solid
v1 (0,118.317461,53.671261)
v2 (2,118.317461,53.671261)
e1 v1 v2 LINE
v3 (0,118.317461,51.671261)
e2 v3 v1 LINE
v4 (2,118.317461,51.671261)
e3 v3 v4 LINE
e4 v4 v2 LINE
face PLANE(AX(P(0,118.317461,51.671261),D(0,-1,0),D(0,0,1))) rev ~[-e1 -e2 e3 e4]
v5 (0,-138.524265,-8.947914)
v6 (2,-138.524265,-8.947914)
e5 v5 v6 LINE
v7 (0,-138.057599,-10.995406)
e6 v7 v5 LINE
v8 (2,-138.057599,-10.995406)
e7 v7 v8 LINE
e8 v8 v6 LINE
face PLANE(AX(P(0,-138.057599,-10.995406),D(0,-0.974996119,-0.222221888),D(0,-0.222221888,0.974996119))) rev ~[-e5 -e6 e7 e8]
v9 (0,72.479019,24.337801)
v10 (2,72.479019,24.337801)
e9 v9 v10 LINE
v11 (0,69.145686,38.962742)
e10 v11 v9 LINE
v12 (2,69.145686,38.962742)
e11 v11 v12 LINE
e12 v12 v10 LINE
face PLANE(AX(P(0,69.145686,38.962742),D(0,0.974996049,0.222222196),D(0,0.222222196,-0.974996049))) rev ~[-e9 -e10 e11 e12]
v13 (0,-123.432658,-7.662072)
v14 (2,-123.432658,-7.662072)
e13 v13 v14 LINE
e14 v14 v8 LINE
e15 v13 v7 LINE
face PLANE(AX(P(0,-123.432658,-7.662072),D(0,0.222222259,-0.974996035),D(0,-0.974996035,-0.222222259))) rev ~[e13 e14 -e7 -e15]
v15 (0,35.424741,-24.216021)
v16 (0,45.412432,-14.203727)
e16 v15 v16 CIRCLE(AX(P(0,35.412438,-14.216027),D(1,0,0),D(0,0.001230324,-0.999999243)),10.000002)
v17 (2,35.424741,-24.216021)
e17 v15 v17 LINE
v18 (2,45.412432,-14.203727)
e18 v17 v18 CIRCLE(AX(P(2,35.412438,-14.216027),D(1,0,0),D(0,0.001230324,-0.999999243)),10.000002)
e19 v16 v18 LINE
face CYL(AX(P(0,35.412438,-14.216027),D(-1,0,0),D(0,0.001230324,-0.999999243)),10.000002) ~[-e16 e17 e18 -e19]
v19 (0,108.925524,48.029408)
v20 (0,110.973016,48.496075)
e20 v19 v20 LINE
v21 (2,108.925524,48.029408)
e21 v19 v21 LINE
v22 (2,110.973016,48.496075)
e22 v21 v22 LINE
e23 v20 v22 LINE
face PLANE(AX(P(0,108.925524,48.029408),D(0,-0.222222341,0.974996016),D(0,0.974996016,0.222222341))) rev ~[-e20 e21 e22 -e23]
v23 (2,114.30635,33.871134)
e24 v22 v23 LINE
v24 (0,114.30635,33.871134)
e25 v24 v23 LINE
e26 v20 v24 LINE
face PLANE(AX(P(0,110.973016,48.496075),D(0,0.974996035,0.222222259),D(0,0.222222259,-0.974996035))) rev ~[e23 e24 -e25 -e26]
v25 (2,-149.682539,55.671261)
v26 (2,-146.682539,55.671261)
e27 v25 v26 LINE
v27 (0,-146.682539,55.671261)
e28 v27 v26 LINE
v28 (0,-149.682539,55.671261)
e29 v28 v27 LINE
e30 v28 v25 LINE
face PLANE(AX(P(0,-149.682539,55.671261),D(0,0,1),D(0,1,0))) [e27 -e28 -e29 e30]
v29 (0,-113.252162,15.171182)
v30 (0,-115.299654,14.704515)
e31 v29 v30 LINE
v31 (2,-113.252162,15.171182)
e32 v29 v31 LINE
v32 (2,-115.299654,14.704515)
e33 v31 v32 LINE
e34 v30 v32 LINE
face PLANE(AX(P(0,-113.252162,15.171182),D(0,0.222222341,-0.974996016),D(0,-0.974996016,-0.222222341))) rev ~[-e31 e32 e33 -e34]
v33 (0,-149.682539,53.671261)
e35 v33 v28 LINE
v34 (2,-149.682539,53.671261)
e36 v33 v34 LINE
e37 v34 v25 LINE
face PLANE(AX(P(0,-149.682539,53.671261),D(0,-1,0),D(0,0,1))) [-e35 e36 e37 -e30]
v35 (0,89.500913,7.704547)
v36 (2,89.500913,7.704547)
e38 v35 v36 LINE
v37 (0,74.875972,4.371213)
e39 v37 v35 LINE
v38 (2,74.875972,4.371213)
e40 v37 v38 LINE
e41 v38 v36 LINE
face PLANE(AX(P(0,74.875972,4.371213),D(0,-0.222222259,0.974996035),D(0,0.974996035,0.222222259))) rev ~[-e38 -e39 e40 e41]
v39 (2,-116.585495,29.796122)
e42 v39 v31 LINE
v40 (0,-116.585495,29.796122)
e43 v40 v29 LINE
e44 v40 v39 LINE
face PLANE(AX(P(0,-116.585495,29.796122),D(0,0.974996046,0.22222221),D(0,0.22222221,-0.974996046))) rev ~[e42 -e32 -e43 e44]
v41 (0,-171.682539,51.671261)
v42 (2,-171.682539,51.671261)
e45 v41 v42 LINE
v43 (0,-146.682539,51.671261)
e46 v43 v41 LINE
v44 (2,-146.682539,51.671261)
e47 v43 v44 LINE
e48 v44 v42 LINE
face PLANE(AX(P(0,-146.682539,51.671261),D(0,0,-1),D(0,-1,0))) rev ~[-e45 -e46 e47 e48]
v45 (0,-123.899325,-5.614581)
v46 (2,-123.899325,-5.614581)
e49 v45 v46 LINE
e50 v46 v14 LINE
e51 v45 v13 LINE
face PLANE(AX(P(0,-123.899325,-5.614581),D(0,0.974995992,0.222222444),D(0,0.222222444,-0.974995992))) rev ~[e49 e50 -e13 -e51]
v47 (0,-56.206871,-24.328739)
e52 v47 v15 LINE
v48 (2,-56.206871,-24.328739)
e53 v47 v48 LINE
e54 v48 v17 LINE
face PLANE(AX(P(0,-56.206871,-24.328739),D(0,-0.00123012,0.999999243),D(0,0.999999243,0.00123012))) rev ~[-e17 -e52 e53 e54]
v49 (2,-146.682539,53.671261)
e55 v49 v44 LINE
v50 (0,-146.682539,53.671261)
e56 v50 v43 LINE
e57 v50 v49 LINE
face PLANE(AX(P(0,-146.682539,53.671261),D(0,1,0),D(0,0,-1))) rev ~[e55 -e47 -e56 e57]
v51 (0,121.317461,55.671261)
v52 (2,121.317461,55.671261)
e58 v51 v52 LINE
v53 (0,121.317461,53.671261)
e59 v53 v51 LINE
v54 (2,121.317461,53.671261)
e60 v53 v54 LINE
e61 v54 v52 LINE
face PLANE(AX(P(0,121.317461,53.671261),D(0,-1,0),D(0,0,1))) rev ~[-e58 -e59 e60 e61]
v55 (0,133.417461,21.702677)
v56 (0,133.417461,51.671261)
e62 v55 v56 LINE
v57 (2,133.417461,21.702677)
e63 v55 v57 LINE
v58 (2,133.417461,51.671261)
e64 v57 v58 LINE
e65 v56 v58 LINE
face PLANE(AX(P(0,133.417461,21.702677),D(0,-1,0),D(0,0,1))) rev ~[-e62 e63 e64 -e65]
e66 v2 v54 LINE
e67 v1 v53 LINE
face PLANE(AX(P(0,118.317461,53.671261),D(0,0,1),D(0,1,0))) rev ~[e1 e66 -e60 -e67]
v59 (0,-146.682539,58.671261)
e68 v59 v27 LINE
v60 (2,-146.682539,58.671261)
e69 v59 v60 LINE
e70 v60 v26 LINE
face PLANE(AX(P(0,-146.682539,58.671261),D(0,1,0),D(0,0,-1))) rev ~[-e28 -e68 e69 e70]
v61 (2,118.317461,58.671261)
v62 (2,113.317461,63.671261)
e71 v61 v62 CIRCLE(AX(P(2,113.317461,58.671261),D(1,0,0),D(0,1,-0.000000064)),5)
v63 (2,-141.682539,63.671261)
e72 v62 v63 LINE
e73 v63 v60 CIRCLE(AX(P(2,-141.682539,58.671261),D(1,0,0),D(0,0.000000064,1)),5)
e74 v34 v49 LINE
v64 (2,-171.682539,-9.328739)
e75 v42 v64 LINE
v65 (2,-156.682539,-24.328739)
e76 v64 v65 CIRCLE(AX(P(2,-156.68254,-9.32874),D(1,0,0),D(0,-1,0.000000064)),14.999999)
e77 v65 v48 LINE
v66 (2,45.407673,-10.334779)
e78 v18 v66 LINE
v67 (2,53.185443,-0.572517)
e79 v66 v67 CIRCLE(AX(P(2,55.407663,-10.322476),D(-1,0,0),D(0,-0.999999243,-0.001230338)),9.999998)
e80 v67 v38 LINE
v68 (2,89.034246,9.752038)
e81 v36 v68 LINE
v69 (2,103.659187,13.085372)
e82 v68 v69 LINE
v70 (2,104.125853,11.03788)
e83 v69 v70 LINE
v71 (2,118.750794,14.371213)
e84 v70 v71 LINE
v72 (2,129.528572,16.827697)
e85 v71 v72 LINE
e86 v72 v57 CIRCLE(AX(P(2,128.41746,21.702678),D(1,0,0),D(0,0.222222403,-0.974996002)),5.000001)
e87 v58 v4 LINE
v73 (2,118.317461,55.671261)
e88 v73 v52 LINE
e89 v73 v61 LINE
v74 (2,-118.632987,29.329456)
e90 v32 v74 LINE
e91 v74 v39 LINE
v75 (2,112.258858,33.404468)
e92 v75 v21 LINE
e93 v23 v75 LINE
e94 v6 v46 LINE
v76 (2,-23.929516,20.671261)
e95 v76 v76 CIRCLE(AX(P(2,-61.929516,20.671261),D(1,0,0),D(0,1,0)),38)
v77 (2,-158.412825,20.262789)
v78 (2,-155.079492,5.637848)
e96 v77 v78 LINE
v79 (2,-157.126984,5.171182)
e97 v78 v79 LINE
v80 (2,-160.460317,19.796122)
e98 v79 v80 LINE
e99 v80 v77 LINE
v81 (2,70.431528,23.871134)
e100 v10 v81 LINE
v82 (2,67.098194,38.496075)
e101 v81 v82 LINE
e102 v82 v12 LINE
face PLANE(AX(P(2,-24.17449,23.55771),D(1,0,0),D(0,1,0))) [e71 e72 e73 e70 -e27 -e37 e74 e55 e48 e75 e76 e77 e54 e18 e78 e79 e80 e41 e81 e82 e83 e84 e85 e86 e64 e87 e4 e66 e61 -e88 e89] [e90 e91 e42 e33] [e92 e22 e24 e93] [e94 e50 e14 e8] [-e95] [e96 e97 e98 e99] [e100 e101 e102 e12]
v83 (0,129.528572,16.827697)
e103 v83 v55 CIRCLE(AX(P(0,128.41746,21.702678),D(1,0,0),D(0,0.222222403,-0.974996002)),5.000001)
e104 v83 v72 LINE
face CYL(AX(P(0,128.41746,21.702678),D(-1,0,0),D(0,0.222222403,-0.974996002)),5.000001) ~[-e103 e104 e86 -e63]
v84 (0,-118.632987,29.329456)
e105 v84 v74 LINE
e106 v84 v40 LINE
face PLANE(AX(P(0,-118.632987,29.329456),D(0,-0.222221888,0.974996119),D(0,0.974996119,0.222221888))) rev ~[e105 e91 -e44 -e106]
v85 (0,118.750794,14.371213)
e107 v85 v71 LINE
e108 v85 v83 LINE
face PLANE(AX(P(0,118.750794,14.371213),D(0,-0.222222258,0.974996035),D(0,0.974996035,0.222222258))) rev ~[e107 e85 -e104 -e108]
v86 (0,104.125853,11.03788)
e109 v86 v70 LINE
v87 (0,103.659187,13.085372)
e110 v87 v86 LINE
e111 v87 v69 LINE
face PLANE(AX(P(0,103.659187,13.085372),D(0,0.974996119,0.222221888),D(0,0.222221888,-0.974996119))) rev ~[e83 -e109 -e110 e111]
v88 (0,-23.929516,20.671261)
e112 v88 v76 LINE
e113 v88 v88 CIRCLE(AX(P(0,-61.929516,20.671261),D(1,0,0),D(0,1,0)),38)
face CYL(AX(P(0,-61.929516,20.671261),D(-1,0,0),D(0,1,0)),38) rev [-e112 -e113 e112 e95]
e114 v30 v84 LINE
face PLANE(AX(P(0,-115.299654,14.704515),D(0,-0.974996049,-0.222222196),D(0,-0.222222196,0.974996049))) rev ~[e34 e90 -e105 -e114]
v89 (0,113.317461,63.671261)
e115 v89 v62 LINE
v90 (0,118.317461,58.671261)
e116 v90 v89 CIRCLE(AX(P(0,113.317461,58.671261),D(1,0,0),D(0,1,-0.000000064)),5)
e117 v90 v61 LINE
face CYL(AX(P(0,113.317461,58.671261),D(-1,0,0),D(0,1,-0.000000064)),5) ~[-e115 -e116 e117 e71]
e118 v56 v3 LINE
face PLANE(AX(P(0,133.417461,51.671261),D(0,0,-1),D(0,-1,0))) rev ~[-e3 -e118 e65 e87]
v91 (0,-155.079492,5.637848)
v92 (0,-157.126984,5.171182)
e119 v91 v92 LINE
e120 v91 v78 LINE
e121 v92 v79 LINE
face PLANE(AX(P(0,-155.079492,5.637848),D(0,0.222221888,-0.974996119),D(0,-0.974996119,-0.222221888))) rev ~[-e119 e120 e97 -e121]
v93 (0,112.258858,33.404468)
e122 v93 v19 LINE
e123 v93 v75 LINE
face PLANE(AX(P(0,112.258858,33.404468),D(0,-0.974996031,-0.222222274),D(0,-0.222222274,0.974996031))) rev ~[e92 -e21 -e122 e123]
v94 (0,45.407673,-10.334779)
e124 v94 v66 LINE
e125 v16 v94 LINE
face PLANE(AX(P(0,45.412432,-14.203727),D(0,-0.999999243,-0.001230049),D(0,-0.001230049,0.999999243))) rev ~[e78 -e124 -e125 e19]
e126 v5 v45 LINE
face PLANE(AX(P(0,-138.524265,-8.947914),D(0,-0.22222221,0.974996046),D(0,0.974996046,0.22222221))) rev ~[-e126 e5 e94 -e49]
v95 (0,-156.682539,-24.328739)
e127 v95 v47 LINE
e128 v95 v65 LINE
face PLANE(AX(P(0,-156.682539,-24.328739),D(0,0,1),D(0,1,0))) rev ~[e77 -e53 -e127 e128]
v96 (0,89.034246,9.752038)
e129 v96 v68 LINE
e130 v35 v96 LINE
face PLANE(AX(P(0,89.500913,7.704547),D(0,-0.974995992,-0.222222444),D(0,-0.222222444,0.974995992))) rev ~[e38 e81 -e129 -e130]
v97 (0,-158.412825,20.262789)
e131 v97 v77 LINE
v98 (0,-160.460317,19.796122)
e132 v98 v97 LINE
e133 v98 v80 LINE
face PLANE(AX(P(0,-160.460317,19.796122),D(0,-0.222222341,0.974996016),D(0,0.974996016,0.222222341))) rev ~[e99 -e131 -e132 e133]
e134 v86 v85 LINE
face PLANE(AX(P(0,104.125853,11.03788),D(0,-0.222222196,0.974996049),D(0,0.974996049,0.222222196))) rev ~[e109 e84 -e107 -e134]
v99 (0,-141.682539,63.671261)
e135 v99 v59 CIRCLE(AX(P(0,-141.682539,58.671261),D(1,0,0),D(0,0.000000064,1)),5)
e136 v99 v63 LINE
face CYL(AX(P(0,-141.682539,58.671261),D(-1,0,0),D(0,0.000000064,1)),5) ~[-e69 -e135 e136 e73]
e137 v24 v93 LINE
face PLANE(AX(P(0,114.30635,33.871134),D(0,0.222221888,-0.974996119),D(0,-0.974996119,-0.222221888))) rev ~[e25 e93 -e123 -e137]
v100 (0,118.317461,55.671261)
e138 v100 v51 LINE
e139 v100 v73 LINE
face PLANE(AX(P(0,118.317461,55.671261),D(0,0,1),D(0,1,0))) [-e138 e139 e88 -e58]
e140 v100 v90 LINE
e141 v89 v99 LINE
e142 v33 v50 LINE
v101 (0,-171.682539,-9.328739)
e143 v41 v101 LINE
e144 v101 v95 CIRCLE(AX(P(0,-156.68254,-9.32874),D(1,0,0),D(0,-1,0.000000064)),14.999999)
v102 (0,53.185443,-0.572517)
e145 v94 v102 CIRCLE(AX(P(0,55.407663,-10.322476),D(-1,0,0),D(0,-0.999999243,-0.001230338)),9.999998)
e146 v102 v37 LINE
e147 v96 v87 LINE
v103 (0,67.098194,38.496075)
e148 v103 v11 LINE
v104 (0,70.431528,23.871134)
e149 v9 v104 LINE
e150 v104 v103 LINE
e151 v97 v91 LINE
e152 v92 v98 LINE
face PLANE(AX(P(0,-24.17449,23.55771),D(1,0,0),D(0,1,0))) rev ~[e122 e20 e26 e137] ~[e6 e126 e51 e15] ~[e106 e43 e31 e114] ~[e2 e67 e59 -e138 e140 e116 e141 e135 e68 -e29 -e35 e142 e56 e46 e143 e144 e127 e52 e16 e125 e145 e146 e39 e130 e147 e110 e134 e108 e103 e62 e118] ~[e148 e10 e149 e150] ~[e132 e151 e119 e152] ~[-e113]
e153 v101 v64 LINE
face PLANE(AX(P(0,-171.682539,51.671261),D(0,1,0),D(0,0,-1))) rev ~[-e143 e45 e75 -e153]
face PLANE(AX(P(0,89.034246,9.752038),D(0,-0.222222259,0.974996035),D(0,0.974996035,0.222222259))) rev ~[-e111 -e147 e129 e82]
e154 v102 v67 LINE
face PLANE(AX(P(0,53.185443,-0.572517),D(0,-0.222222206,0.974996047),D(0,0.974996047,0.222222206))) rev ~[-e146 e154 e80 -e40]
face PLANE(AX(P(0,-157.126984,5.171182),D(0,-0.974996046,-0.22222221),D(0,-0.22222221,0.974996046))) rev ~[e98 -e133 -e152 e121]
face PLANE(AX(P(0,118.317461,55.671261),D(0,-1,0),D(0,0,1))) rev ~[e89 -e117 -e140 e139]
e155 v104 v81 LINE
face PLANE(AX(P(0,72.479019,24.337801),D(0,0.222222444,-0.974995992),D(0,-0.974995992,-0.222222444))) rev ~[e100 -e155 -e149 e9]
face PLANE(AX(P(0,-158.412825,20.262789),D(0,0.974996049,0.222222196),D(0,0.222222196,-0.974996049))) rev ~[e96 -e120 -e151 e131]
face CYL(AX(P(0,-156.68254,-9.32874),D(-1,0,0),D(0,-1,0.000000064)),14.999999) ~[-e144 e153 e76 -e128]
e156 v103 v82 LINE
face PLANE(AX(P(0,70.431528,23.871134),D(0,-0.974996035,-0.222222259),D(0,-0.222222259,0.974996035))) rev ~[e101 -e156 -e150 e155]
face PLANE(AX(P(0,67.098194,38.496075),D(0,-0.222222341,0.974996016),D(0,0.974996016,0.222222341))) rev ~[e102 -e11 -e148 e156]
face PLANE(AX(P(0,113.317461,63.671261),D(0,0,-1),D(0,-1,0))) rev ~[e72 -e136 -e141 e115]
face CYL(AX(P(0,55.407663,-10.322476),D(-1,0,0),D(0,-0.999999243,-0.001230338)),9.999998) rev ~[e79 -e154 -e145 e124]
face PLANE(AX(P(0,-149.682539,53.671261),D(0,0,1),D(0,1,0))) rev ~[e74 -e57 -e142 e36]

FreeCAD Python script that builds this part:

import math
import FreeCAD as App
import Part
import Sketcher

V = App.Vector


def add_polygon(sketch, points):
    """Adds a closed chain of lines whose ends are joined by coincident constraints."""
    first, n = sketch.GeometryCount, len(points)
    for a, b in zip(points, points[1:] + points[:1]):
        sketch.addGeometry(Part.LineSegment(App.Vector(*a, 0), App.Vector(*b, 0)), False)
    for i in range(n):
        sketch.addConstraint(Sketcher.Constraint("Coincident", first + i, 2, first + (i + 1) % n, 1))

doc = App.newDocument("Part")
body = doc.addObject("PartDesign::Body", "Body")

sketch1 = body.newObject("Sketcher::SketchObject", "Sketch")
sketch1.AttachmentSupport = (doc.getObject("YZ_Plane"), [""])
sketch1.MapMode = "FlatFace"
sketch1.addGeometry(Part.ArcOfCircle(Part.Circle(V(-141.682539, 58.671261, 0), V(0, 0, 1), 5), math.radians(89.999996), math.radians(180.000004)), False)
sketch1.addGeometry(Part.LineSegment(V(-146.682539, 58.671261, 0), V(-146.682539, 55.671261, 0)), False)
sketch1.addGeometry(Part.LineSegment(V(-146.682539, 55.671261, 0), V(-149.682539, 55.671261, 0)), False)
sketch1.addGeometry(Part.LineSegment(V(-149.682539, 55.671261, 0), V(-149.682539, 53.671261, 0)), False)
sketch1.addGeometry(Part.LineSegment(V(-149.682539, 53.671261, 0), V(-146.682539, 53.671261, 0)), False)
sketch1.addGeometry(Part.LineSegment(V(-146.682539, 53.671261, 0), V(-146.682539, 51.671261, 0)), False)
sketch1.addGeometry(Part.LineSegment(V(-146.682539, 51.671261, 0), V(-171.682539, 51.671261, 0)), False)
sketch1.addGeometry(Part.LineSegment(V(-171.682539, 51.671261, 0), V(-171.682539, -9.328739, 0)), False)
sketch1.addGeometry(Part.ArcOfCircle(Part.Circle(V(-156.68254, -9.32874, 0), V(0, 0, 1), 14.999999), math.radians(179.999996), math.radians(270.000004)), False)
sketch1.addGeometry(Part.LineSegment(V(-156.682539, -24.328739, 0), V(-56.206871, -24.328739, 0)), False)
sketch1.addGeometry(Part.LineSegment(V(-56.206871, -24.328739, 0), V(35.424741, -24.216021, 0)), False)
sketch1.addGeometry(Part.ArcOfCircle(Part.Circle(V(35.412438, -14.216027, 0), V(0, 0, 1), 10.000002), math.radians(-89.929508), math.radians(0.070472)), False)
sketch1.addGeometry(Part.LineSegment(V(45.412432, -14.203727, 0), V(45.407673, -10.334779, 0)), False)
sketch1.addGeometry(Part.ArcOfCircle(Part.Circle(V(55.407663, -10.322476, 0), V(0, 0, 1), 9.999998), math.radians(102.83958), math.radians(180.070493)), False)
sketch1.addGeometry(Part.LineSegment(V(53.185443, -0.572517, 0), V(74.875972, 4.371213, 0)), False)
sketch1.addGeometry(Part.LineSegment(V(74.875972, 4.371213, 0), V(89.500913, 7.704547, 0)), False)
sketch1.addGeometry(Part.LineSegment(V(89.500913, 7.704547, 0), V(89.034246, 9.752038, 0)), False)
sketch1.addGeometry(Part.LineSegment(V(89.034246, 9.752038, 0), V(103.659187, 13.085372, 0)), False)
sketch1.addGeometry(Part.LineSegment(V(103.659187, 13.085372, 0), V(104.125853, 11.03788, 0)), False)
sketch1.addGeometry(Part.LineSegment(V(104.125853, 11.03788, 0), V(118.750794, 14.371213, 0)), False)
sketch1.addGeometry(Part.LineSegment(V(118.750794, 14.371213, 0), V(129.528572, 16.827697, 0)), False)
sketch1.addGeometry(Part.ArcOfCircle(Part.Circle(V(128.41746, 21.702678, 0), V(0, 0, 1), 5.000001), math.radians(-77.160401), math.radians(-0.000015)), False)
sketch1.addGeometry(Part.LineSegment(V(133.417461, 21.702677, 0), V(133.417461, 51.671261, 0)), False)
sketch1.addGeometry(Part.LineSegment(V(133.417461, 51.671261, 0), V(118.317461, 51.671261, 0)), False)
sketch1.addGeometry(Part.LineSegment(V(118.317461, 51.671261, 0), V(118.317461, 53.671261, 0)), False)
sketch1.addGeometry(Part.LineSegment(V(118.317461, 53.671261, 0), V(121.317461, 53.671261, 0)), False)
sketch1.addGeometry(Part.LineSegment(V(121.317461, 53.671261, 0), V(121.317461, 55.671261, 0)), False)
sketch1.addGeometry(Part.LineSegment(V(121.317461, 55.671261, 0), V(118.317461, 55.671261, 0)), False)
sketch1.addGeometry(Part.LineSegment(V(118.317461, 55.671261, 0), V(118.317461, 58.671261, 0)), False)
sketch1.addGeometry(Part.ArcOfCircle(Part.Circle(V(113.317461, 58.671261, 0), V(0, 0, 1), 5), math.radians(-0.000004), math.radians(90.000004)), False)
sketch1.addGeometry(Part.LineSegment(V(113.317461, 63.671261, 0), V(-141.682539, 63.671261, 0)), False)
add_polygon(sketch1, [(-123.899325, -5.614581), (-123.432658, -7.662072), (-138.057599, -10.995406), (-138.524265, -8.947914)])
add_polygon(sketch1, [(-158.412825, 20.262789), (-155.079492, 5.637848), (-157.126984, 5.171182), (-160.460317, 19.796122)])
add_polygon(sketch1, [(-118.632987, 29.329456), (-116.585495, 29.796122), (-113.252162, 15.171182), (-115.299654, 14.704515)])
sketch1.addGeometry(Part.Circle(V(-61.929516, 20.671261, 0), V(0, 0, 1), 38), False)
add_polygon(sketch1, [(69.145686, 38.962742), (72.479019, 24.337801), (70.431528, 23.871134), (67.098194, 38.496075)])
add_polygon(sketch1, [(108.925524, 48.029408), (110.973016, 48.496075), (114.30635, 33.871134), (112.258858, 33.404468)])
sketch1.addConstraint([
    Sketcher.Constraint("Tangent", 0, 2, 1, 1),
    Sketcher.Constraint("Coincident", 1, 2, 2, 1),
    Sketcher.Constraint("Coincident", 2, 2, 3, 1),
    Sketcher.Constraint("Coincident", 3, 2, 4, 1),
    Sketcher.Constraint("Coincident", 4, 2, 5, 1),
    Sketcher.Constraint("Coincident", 5, 2, 6, 1),
    Sketcher.Constraint("Coincident", 6, 2, 7, 1),
    Sketcher.Constraint("Tangent", 7, 2, 8, 1),
    Sketcher.Constraint("Tangent", 8, 2, 9, 1),
    Sketcher.Constraint("Coincident", 9, 2, 10, 1),
    Sketcher.Constraint("Tangent", 10, 2, 11, 1),
    Sketcher.Constraint("Tangent", 11, 2, 12, 1),
    Sketcher.Constraint("Tangent", 12, 2, 13, 2),
    Sketcher.Constraint("Tangent", 13, 1, 14, 1),
    Sketcher.Constraint("Coincident", 14, 2, 15, 1),
    Sketcher.Constraint("Coincident", 15, 2, 16, 1),
    Sketcher.Constraint("Coincident", 16, 2, 17, 1),
    Sketcher.Constraint("Coincident", 17, 2, 18, 1),
    Sketcher.Constraint("Coincident", 18, 2, 19, 1),
    Sketcher.Constraint("Coincident", 19, 2, 20, 1),
    Sketcher.Constraint("Tangent", 20, 2, 21, 1),
    Sketcher.Constraint("Tangent", 21, 2, 22, 1),
    Sketcher.Constraint("Coincident", 22, 2, 23, 1),
    Sketcher.Constraint("Coincident", 23, 2, 24, 1),
    Sketcher.Constraint("Coincident", 24, 2, 25, 1),
    Sketcher.Constraint("Coincident", 25, 2, 26, 1),
    Sketcher.Constraint("Coincident", 26, 2, 27, 1),
    Sketcher.Constraint("Coincident", 27, 2, 28, 1),
    Sketcher.Constraint("Tangent", 28, 2, 29, 1),
    Sketcher.Constraint("Tangent", 29, 2, 30, 1),
    Sketcher.Constraint("Tangent", 30, 2, 0, 1),
    Sketcher.Constraint("Vertical", 1),
    Sketcher.Constraint("Horizontal", 2),
    Sketcher.Constraint("Vertical", 3),
    Sketcher.Constraint("Horizontal", 4),
    Sketcher.Constraint("Vertical", 5),
    Sketcher.Constraint("Horizontal", 6),
    Sketcher.Constraint("Vertical", 7),
    Sketcher.Constraint("Horizontal", 9),
    Sketcher.Constraint("Vertical", 22),
    Sketcher.Constraint("Horizontal", 23),
    Sketcher.Constraint("Vertical", 24),
    Sketcher.Constraint("Horizontal", 25),
    Sketcher.Constraint("Vertical", 26),
    Sketcher.Constraint("Horizontal", 27),
    Sketcher.Constraint("Vertical", 28),
    Sketcher.Constraint("Horizontal", 30),
    Sketcher.Constraint("Equal", 0, 21),
    Sketcher.Constraint("Equal", 21, 29),
    Sketcher.Constraint("Perpendicular", 10, 12),
    Sketcher.Constraint("Parallel", 14, 15),
    Sketcher.Constraint("Perpendicular", 15, 16),
    Sketcher.Constraint("Perpendicular", 16, 17),
    Sketcher.Constraint("Perpendicular", 17, 18),
    Sketcher.Constraint("Perpendicular", 18, 19),
    Sketcher.Constraint("Parallel", 19, 20),
    Sketcher.Constraint("Perpendicular", 20, 31),
    Sketcher.Constraint("Perpendicular", 31, 32),
    Sketcher.Constraint("Perpendicular", 32, 33),
    Sketcher.Constraint("Perpendicular", 33, 34),
    Sketcher.Constraint("Perpendicular", 34, 35),
    Sketcher.Constraint("Perpendicular", 35, 36),
    Sketcher.Constraint("Perpendicular", 36, 37),
    Sketcher.Constraint("Perpendicular", 37, 38),
    Sketcher.Constraint("Parallel", 38, 39),
    Sketcher.Constraint("Perpendicular", 39, 40),
    Sketcher.Constraint("Perpendicular", 40, 41),
    Sketcher.Constraint("Perpendicular", 41, 42),
    Sketcher.Constraint("Parallel", 42, 44),
    Sketcher.Constraint("Perpendicular", 44, 45),
    Sketcher.Constraint("Perpendicular", 45, 46),
    Sketcher.Constraint("Perpendicular", 46, 47),
    Sketcher.Constraint("Parallel", 47, 48),
    Sketcher.Constraint("Perpendicular", 48, 49),
    Sketcher.Constraint("Perpendicular", 49, 50),
    Sketcher.Constraint("Perpendicular", 50, 51),
    Sketcher.Constraint("Horizontal", 6, 2, 22, 2),
    Sketcher.Constraint("Horizontal", 4, 2, 24, 2),
    Sketcher.Constraint("Horizontal", 2, 2, 26, 2),
    Sketcher.Constraint("Vertical", 1, 2, 4, 2),
    Sketcher.Constraint("Vertical", 24, 2, 27, 2),
    Sketcher.Constraint("Equal", 4, 25),
    Sketcher.Constraint("Equal", 27, 1),
    Sketcher.Constraint("Equal", 3, 5),
    Sketcher.Constraint("Equal", 15, 17),
    Sketcher.Constraint("Equal", 16, 18),
    Sketcher.Constraint("Equal", 17, 19),
    Sketcher.Constraint("Equal", 18, 31),
    Sketcher.Constraint("Equal", 19, 32),
    Sketcher.Constraint("Equal", 34, 35),
    Sketcher.Constraint("Equal", 33, 36),
    Sketcher.Constraint("Equal", 38, 39),
    Sketcher.Constraint("Equal", 37, 40),
    Sketcher.Constraint("Equal", 42, 44),
    Sketcher.Constraint("Equal", 41, 45),
    Sketcher.Constraint("Equal", 47, 48),
    Sketcher.Constraint("Equal", 46, 49),
    Sketcher.Constraint("Diameter", 43, 76.0),
    Sketcher.Constraint("Radius", 0, 5.0),
    Sketcher.Constraint("Radius", 8, 14.999999),
    Sketcher.Constraint("Radius", 11, 10.000002),
    Sketcher.Constraint("DistanceX", 2, 2, 2, 1, 3.0),
    Sketcher.Constraint("DistanceX", 6, 2, 6, 1, 25.0),
    Sketcher.Constraint("DistanceX", 30, 2, 30, 1, 255.0),
    Sketcher.Constraint("DistanceY", 3, 2, 3, 1, 2.0),
    Sketcher.Constraint("DistanceY", 7, 2, 7, 1, 61.0),
    Sketcher.Constraint("Distance", 15, 15.0),
    Sketcher.Constraint("DistanceX", 23, 2, 23, 1, 15.1),
    Sketcher.Constraint("DistanceY", 43, 3, 0, 3, 38.0),
    Sketcher.Constraint("Distance", 16, 2.099999),
    Sketcher.Constraint("Radius", 13, 9.999998),
    Sketcher.Constraint("DistanceX", 32, 2, -1, 1, 138.057599),
    Sketcher.Constraint("DistanceY", -1, 1, 44, 2, 24.337801),
    Sketcher.Constraint("DistanceX", 13, 3, 29, 3, 57.909798),
    Sketcher.Constraint("DistanceY", 10, 2, 21, 3, 45.918699),
    Sketcher.Constraint("DistanceY", 11, 3, 11, 2, 0.0123),
    Sketcher.Constraint("DistanceX", 12, 2, 14, 2, 29.468299),
    Sketcher.Constraint("DistanceY", 18, 2, 21, 3, 10.664798),
    Sketcher.Constraint("DistanceX", 50, 2, 21, 3, 16.158602),
    Sketcher.Constraint("Distance", 10, 91.631681),
    Sketcher.Constraint("DistanceX", 0, 3, -1, 1, 141.682539),
    Sketcher.Constraint("DistanceY", -1, 1, 0, 3, 58.671261),
    Sketcher.Constraint("DistanceY", 34, 2, -1, 1, 5.614581),
    Sketcher.Constraint("DistanceX", 35, 2, -1, 1, 155.079492),
    Sketcher.Constraint("DistanceY", -1, 1, 38, 2, 20.262789),
    Sketcher.Constraint("DistanceX", 40, 2, -1, 1, 113.252162),
    Sketcher.Constraint("DistanceX", -1, 1, 44, 2, 72.479019),
    Sketcher.Constraint("DistanceX", 43, 3, 13, 3, 117.337179),
    Sketcher.Constraint("DistanceY", 39, 2, 5, 2, 21.875139),
    Sketcher.Constraint("DistanceY", 19, 2, 49, 2, 19.499921),
])
pad1 = body.newObject("PartDesign::Pad", "Pad")
pad1.Profile = sketch1
pad1.Length = 2

doc.recompute()
